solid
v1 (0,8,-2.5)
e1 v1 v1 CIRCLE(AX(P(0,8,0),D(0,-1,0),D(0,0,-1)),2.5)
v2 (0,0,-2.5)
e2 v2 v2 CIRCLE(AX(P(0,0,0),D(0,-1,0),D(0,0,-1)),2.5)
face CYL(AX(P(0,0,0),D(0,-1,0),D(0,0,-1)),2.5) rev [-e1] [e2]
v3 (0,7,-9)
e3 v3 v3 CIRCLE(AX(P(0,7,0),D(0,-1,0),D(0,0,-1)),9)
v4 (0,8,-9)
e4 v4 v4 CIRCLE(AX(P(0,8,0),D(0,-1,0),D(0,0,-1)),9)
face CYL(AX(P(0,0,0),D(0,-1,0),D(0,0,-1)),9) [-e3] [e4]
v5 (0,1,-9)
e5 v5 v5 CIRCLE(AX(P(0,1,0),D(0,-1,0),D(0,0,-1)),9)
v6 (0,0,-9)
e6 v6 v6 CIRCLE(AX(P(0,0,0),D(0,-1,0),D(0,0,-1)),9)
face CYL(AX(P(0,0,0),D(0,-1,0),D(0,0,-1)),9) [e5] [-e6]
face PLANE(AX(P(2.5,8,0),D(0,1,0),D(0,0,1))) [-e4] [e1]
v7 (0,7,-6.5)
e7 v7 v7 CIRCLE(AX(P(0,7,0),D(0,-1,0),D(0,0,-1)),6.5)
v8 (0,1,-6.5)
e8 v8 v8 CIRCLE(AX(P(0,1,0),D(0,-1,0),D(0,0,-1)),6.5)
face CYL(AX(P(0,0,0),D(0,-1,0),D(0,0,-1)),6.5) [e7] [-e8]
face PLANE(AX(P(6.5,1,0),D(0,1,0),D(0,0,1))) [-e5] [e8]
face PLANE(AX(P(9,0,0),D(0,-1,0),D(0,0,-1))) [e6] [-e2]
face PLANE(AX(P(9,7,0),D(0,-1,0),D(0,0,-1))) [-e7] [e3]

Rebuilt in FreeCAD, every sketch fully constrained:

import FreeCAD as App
import Part
import Sketcher

V = App.Vector

doc = App.newDocument("Part")
params = doc.addObject("Spreadsheet::Sheet", "Params")
for row, (alias, value) in enumerate([
    ("sketch1_height", "8 mm"),
    ("sketch1_height2", "1 mm"),
    ("sketch1_width", "6.5 mm"),
    ("sketch1_width2", "2.5 mm"),
    ("revolution_angle", "360 deg"),
], start=1):
    params.set(f"A{row}", alias)
    params.set(f"B{row}", "=" + value)
    params.setAlias(f"B{row}", alias)

body = doc.addObject("PartDesign::Body", "Body")

sketch1 = doc.addObject("Sketcher::SketchObject", "Sketch")
body.addObject(sketch1)
sketch1.AttachmentSupport = (doc.XY_Plane, [""])
sketch1.MapMode = "FlatFace"
sketch1.addGeometry(Part.LineSegment(V(2.5, 8, 0), V(2.5, 0, 0)), False)
sketch1.addGeometry(Part.LineSegment(V(2.5, 0, 0), V(9, 0, 0)), False)
sketch1.addGeometry(Part.LineSegment(V(9, 0, 0), V(9, 1, 0)), False)
sketch1.addGeometry(Part.LineSegment(V(9, 1, 0), V(6.5, 1, 0)), False)
sketch1.addGeometry(Part.LineSegment(V(6.5, 1, 0), V(6.5, 7, 0)), False)
sketch1.addGeometry(Part.LineSegment(V(6.5, 7, 0), V(9, 7, 0)), False)
sketch1.addGeometry(Part.LineSegment(V(9, 7, 0), V(9, 8, 0)), False)
sketch1.addGeometry(Part.LineSegment(V(9, 8, 0), V(2.5, 8, 0)), False)
sketch1.addConstraint(Sketcher.Constraint("Coincident", 0, 2, 1, 1))
sketch1.addConstraint(Sketcher.Constraint("Coincident", 1, 2, 2, 1))
sketch1.addConstraint(Sketcher.Constraint("Coincident", 2, 2, 3, 1))
sketch1.addConstraint(Sketcher.Constraint("Coincident", 3, 2, 4, 1))
sketch1.addConstraint(Sketcher.Constraint("Coincident", 4, 2, 5, 1))
sketch1.addConstraint(Sketcher.Constraint("Coincident", 5, 2, 6, 1))
sketch1.addConstraint(Sketcher.Constraint("Coincident", 6, 2, 7, 1))
sketch1.addConstraint(Sketcher.Constraint("Coincident", 7, 2, 0, 1))
sketch1.addConstraint(Sketcher.Constraint("Vertical", 0))
sketch1.addConstraint(Sketcher.Constraint("Horizontal", 1))
sketch1.addConstraint(Sketcher.Constraint("Vertical", 2))
sketch1.addConstraint(Sketcher.Constraint("Horizontal", 3))
sketch1.addConstraint(Sketcher.Constraint("Vertical", 4))
sketch1.addConstraint(Sketcher.Constraint("Horizontal", 5))
sketch1.addConstraint(Sketcher.Constraint("Vertical", 6))
sketch1.addConstraint(Sketcher.Constraint("Horizontal", 7))
sketch1.addConstraint(Sketcher.Constraint("PointOnObject", 0, 2, -1))
sketch1.addConstraint(Sketcher.Constraint("Vertical", 2, 2, 5, 2))
sketch1.addConstraint(Sketcher.Constraint("Equal", 2, 6))
sketch1.addConstraint(Sketcher.Constraint("DistanceY", 0, 2, 0, 1, 8.0))
sketch1.addConstraint(Sketcher.Constraint("DistanceY", 2, 1, 2, 2, 1.0))
sketch1.addConstraint(Sketcher.Constraint("DistanceX", 1, 1, 1, 2, 6.5))
sketch1.addConstraint(Sketcher.Constraint("DistanceX", 3, 2, 3, 1, 2.5))
sketch1.addConstraint(Sketcher.Constraint("DistanceX", -1, 1, 1, 2, 9.0))
sketch1.setExpression("Constraints[19]", "Params.sketch1_height")
sketch1.setExpression("Constraints[20]", "Params.sketch1_height2")
sketch1.setExpression("Constraints[21]", "Params.sketch1_width")
sketch1.setExpression("Constraints[22]", "Params.sketch1_width2")
revolution = doc.addObject("PartDesign::Revolution", "Revolution")
body.addObject(revolution)
revolution.Profile = sketch1
revolution.ReferenceAxis = (sketch1, ["V_Axis"])
revolution.setExpression("Angle", "Params.revolution_angle")

doc.recompute()
